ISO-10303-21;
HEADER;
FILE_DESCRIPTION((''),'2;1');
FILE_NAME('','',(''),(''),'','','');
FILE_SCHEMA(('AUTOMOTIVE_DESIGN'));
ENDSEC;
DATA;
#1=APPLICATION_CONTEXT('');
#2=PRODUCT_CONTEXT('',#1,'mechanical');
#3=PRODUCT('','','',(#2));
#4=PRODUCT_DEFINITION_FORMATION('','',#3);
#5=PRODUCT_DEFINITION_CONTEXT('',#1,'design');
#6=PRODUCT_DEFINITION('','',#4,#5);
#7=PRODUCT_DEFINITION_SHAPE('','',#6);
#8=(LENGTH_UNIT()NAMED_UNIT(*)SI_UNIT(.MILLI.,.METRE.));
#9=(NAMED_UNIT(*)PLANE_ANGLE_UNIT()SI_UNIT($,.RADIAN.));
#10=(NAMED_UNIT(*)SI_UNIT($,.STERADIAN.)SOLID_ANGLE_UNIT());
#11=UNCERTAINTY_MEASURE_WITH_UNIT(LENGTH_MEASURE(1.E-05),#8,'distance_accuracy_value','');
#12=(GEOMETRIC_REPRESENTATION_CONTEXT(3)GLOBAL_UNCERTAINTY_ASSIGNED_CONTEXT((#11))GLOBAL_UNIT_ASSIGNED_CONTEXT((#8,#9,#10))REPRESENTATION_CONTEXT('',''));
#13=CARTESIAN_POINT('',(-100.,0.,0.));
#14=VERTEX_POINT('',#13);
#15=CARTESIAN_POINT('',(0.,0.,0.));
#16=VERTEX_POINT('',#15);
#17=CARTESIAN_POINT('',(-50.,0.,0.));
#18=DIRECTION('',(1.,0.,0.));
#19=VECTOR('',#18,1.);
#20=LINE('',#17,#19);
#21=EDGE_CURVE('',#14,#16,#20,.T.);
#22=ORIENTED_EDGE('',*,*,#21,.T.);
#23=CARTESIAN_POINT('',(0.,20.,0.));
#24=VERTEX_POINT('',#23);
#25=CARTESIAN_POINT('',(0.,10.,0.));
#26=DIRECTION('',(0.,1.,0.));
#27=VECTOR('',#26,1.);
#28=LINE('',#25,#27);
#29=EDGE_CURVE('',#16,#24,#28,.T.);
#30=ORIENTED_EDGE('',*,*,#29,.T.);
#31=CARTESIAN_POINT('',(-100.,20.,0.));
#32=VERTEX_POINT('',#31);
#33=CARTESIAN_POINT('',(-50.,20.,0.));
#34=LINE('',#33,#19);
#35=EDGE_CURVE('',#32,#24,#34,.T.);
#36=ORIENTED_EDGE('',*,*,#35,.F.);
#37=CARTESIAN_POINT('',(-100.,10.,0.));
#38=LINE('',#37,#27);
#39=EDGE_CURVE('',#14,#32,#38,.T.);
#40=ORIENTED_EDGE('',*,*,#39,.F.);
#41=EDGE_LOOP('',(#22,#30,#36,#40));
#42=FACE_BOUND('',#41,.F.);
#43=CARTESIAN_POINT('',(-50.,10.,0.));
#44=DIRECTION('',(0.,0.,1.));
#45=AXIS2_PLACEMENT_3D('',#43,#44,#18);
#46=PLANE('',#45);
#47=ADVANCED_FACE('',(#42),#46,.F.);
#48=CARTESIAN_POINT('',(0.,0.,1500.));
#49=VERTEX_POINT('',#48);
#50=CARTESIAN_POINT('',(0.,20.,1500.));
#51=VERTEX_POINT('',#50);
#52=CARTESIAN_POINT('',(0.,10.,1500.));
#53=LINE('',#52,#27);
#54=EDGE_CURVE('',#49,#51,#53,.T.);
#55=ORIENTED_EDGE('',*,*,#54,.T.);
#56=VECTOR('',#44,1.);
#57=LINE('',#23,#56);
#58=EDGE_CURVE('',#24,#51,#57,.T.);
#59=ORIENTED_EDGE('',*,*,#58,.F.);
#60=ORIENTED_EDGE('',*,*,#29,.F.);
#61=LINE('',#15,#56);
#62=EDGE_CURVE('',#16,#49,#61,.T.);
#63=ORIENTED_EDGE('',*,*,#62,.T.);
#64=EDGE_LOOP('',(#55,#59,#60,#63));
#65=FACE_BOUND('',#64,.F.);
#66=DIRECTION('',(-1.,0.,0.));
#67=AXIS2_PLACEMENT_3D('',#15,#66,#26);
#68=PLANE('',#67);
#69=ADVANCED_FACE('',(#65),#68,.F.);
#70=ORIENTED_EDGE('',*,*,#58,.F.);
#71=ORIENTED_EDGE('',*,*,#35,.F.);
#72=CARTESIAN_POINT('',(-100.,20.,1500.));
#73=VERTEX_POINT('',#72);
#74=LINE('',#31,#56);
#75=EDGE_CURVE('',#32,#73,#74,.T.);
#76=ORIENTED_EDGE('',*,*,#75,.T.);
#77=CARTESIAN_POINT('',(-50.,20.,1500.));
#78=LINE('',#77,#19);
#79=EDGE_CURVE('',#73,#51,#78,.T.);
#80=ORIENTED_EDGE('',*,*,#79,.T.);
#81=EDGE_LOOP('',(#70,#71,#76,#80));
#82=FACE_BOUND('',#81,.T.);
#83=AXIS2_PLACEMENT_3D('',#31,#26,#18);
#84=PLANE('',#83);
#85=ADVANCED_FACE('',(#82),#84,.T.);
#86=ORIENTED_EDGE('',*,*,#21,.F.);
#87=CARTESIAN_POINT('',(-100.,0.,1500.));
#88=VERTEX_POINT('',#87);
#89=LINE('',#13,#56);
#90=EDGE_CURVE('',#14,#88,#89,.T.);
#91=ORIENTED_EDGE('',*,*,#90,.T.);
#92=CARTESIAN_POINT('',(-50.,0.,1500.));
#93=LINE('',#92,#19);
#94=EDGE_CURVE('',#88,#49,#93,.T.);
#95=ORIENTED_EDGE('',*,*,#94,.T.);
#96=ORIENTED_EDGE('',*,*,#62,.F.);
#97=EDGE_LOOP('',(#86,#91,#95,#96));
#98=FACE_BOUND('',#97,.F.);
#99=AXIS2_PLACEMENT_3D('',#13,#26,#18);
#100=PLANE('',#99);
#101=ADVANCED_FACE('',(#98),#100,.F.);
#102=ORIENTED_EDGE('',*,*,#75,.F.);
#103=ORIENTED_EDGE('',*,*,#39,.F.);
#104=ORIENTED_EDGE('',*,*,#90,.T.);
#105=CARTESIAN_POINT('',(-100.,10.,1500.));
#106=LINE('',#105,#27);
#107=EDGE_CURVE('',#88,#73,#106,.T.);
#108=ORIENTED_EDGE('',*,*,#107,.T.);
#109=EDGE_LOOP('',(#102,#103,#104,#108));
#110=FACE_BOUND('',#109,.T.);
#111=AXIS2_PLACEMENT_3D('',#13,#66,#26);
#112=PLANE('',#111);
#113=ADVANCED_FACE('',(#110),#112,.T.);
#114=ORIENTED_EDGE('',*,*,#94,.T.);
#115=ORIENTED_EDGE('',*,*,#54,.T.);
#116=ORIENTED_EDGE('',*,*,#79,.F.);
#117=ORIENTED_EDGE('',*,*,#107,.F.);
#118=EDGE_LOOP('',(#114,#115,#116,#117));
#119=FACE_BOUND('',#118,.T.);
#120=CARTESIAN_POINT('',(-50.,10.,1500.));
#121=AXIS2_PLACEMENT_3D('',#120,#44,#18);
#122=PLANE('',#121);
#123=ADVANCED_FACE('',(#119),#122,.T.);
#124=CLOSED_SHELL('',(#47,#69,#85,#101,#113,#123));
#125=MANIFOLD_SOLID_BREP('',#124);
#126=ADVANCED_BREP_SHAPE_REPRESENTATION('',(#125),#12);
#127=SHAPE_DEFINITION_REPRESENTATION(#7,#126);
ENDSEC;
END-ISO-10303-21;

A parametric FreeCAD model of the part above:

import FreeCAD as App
import Part
import Sketcher
Q = App.Units.Quantity

doc = App.newDocument("Part")
params = doc.addObject("Spreadsheet::Sheet", "Params")
for row, (alias, value) in enumerate([
    ("sketch1_width", "100 mm"),
    ("sketch1_height", "20 mm"),
    ("pad1_length", "1500 mm"),
], start=1):
    params.set(f"A{row}", alias)
    params.set(f"B{row}", "=" + value)
    params.setAlias(f"B{row}", alias)

body = doc.addObject("PartDesign::Body", "Body")

# Sketch on XY plane
sketch1 = body.newObject("Sketcher::SketchObject", "Sketch")
sketch1.AttachmentSupport = (doc.getObject("XY_Plane"), [""])
sketch1.MapMode = "FlatFace"
sketch1.addGeometry([
    Part.LineSegment(App.Vector(-100, 20, 0), App.Vector(-100, 0, 0)),
    Part.LineSegment(App.Vector(-100, 0, 0), App.Vector(0, 0, 0)),
    Part.LineSegment(App.Vector(0, 0, 0), App.Vector(0, 20, 0)),
    Part.LineSegment(App.Vector(0, 20, 0), App.Vector(-100, 20, 0)),
], False)
sketch1.addConstraint([
    Sketcher.Constraint("Coincident", 0, 2, 1, 1),
    Sketcher.Constraint("Coincident", 1, 2, 2, 1),
    Sketcher.Constraint("Coincident", 2, 2, 3, 1),
    Sketcher.Constraint("Coincident", 3, 2, 0, 1),
    Sketcher.Constraint("Vertical", 0),
    Sketcher.Constraint("Horizontal", 1),
    Sketcher.Constraint("Vertical", 2),
    Sketcher.Constraint("Horizontal", 3),
    Sketcher.Constraint("Coincident", 1, 2, -1, 1),
    Sketcher.Constraint("DistanceX", 1, 1, 1, 2, Q("100 mm")),
    Sketcher.Constraint("DistanceY", 0, 2, 0, 1, Q("20 mm")),
])
sketch1.setExpression("Constraints[9]", "Params.sketch1_width")
sketch1.setExpression("Constraints[10]", "Params.sketch1_height")
pad1 = body.newObject("PartDesign::Pad", "Pad")
pad1.Profile = sketch1
pad1.setExpression("Length", "Params.pad1_length")

doc.recompute()
